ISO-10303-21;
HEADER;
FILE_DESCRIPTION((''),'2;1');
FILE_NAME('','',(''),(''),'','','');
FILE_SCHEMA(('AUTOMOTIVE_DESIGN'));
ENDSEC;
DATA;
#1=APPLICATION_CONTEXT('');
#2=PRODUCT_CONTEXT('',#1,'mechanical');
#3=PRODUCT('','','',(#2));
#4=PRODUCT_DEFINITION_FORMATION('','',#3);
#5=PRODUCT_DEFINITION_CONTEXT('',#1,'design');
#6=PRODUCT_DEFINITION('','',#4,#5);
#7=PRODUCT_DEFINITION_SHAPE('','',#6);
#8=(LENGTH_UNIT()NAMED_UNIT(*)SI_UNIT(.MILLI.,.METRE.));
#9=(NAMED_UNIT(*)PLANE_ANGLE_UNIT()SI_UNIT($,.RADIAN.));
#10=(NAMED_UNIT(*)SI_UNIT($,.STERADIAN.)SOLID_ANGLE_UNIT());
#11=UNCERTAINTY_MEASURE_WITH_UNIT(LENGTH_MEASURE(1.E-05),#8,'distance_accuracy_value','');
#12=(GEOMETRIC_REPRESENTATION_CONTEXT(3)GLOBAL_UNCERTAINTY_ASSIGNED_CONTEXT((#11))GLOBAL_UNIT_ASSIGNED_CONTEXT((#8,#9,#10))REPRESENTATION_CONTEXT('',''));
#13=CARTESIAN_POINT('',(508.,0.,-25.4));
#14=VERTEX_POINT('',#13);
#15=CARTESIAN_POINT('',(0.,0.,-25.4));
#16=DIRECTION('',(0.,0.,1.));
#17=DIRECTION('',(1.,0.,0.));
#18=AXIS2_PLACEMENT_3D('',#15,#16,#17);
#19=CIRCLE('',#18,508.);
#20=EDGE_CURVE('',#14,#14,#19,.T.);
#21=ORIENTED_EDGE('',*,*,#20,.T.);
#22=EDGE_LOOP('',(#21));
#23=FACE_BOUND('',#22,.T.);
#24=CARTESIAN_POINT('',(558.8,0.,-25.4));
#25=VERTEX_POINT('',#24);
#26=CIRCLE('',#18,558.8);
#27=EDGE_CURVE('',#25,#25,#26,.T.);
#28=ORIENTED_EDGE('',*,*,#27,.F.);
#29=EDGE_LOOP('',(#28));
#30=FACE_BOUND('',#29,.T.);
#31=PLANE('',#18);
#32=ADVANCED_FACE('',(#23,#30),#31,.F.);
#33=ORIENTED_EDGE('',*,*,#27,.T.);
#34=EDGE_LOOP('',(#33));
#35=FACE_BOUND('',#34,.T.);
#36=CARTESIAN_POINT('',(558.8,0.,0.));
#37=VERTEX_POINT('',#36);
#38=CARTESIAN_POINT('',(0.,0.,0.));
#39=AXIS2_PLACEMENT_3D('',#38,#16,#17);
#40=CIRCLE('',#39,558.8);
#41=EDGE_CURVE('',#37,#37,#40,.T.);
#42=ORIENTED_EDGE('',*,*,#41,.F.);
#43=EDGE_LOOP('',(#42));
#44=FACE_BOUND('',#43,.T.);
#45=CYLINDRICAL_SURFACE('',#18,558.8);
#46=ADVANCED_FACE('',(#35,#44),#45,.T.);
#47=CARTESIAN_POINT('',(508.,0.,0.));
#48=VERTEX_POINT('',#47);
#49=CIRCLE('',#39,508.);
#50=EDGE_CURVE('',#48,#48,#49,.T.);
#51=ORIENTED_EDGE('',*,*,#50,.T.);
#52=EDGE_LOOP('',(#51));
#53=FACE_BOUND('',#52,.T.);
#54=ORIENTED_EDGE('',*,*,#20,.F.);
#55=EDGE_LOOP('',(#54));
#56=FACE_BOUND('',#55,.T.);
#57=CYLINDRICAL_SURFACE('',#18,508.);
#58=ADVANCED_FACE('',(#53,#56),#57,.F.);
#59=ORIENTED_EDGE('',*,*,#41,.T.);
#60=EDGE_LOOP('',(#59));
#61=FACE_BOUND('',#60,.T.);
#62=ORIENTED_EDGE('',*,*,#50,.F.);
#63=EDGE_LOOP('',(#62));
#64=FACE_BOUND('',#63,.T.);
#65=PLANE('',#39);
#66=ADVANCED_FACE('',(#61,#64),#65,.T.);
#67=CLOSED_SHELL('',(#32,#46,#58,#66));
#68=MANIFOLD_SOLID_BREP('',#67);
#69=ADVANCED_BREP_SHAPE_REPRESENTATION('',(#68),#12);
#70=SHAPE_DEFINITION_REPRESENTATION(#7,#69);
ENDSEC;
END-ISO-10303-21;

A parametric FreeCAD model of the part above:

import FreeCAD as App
import Part
import Sketcher
Q = App.Units.Quantity

doc = App.newDocument("Part")
body = doc.addObject("PartDesign::Body", "Body")

sketch1 = body.newObject("Sketcher::SketchObject", "Sketch")
sketch1.AttachmentSupport = (doc.getObject("XY_Plane"), [""])
sketch1.MapMode = "FlatFace"
sketch1.addGeometry([
    Part.Circle(App.Vector(0, 0, 0), App.Vector(0, 0, 1), 559),
    Part.Circle(App.Vector(0, 0, 0), App.Vector(0, 0, 1), 508),
], False)
sketch1.addConstraint([
    Sketcher.Constraint("Coincident", 0, 3, -1, 1),
    Sketcher.Constraint("Coincident", 1, 3, -1, 1),
    Sketcher.Constraint("Diameter", 0, Q("44 in")),
    Sketcher.Constraint("Diameter", 1, Q("40 in")),
])
pad1 = body.newObject("PartDesign::Pad", "Pad")
pad1.Profile = sketch1
pad1.Length = Q("1 in")
pad1.Reversed = True

doc.recompute()
